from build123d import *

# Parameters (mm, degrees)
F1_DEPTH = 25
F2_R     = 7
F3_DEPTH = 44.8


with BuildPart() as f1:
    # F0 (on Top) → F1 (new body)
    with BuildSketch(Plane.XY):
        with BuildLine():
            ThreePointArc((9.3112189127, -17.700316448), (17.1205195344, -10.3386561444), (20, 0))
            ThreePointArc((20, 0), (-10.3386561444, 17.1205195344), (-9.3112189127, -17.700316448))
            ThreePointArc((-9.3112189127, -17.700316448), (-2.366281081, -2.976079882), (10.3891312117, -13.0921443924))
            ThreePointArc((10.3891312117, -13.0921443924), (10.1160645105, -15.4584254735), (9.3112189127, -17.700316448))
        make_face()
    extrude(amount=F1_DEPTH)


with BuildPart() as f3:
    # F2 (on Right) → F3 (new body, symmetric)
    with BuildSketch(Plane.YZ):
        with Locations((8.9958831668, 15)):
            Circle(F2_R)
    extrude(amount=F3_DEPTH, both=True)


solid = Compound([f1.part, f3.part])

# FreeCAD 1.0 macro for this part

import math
import FreeCAD as App
import Part
import Sketcher

doc = App.newDocument("Part")
body = doc.addObject("PartDesign::Body", "Body")

# Sketch on XY plane
sketch1 = body.newObject("Sketcher::SketchObject", "Sketch")
sketch1.AttachmentSupport = (doc.getObject("XY_Plane"), [""])
sketch1.MapMode = "FlatFace"
sketch1.addGeometry([
    Part.ArcOfCircle(Part.Circle(App.Vector(0, 0, 0), App.Vector(0, 0, 1), 20), math.radians(-62), math.radians(242)),
    Part.ArcOfCircle(Part.Circle(App.Vector(0, -13.1, 0), App.Vector(0, 0, 1), 10.4), math.radians(0), math.radians(206)),
    Part.ArcOfCircle(Part.Circle(App.Vector(0, -13.1, 0), App.Vector(0, 0, 1), 10.4), math.radians(-26), math.radians(0)),
], False)
sketch1.addConstraint([
    Sketcher.Constraint("Coincident", 0, 2, 1, 2),
    Sketcher.Constraint("Tangent", 1, 1, 2, 2),
    Sketcher.Constraint("Coincident", 2, 1, 0, 1),
    Sketcher.Constraint("Coincident", 0, 3, -1, 1),
    Sketcher.Constraint("Equal", 1, 2),
    Sketcher.Constraint("PointOnObject", 1, 3, -2),
    Sketcher.Constraint("Horizontal", 2, 3, 1, 1),
    Sketcher.Constraint("Radius", 0, 20.0),
    Sketcher.Constraint("Radius", 1, 10.389131),
    Sketcher.Constraint("DistanceX", 0, 2, -1, 1, 9.311219),
])
pad1 = body.newObject("PartDesign::Pad", "Pad")
pad1.Profile = sketch1
pad1.Length = 25
body2 = doc.addObject("PartDesign::Body", "Body001")

# Sketch on YZ plane
sketch2 = body2.newObject("Sketcher::SketchObject", "Sketch001")
sketch2.AttachmentSupport = (doc.getObject("YZ_Plane001"), [""])
sketch2.MapMode = "FlatFace"
sketch2.addGeometry(Part.Circle(App.Vector(9, 15, 0), App.Vector(0, 0, 1), 7), False)
sketch2.addConstraint([
    Sketcher.Constraint("Diameter", 0, 14.0),
    Sketcher.Constraint("DistanceY", -1, 1, 0, 3, 15.0),
    Sketcher.Constraint("DistanceX", -1, 1, 0, 3, 8.995883),
])
pad2 = body2.newObject("PartDesign::Pad", "Pad001")
pad2.Profile = sketch2
pad2.Length = 89.6
pad2.Midplane = True

doc.recompute()
